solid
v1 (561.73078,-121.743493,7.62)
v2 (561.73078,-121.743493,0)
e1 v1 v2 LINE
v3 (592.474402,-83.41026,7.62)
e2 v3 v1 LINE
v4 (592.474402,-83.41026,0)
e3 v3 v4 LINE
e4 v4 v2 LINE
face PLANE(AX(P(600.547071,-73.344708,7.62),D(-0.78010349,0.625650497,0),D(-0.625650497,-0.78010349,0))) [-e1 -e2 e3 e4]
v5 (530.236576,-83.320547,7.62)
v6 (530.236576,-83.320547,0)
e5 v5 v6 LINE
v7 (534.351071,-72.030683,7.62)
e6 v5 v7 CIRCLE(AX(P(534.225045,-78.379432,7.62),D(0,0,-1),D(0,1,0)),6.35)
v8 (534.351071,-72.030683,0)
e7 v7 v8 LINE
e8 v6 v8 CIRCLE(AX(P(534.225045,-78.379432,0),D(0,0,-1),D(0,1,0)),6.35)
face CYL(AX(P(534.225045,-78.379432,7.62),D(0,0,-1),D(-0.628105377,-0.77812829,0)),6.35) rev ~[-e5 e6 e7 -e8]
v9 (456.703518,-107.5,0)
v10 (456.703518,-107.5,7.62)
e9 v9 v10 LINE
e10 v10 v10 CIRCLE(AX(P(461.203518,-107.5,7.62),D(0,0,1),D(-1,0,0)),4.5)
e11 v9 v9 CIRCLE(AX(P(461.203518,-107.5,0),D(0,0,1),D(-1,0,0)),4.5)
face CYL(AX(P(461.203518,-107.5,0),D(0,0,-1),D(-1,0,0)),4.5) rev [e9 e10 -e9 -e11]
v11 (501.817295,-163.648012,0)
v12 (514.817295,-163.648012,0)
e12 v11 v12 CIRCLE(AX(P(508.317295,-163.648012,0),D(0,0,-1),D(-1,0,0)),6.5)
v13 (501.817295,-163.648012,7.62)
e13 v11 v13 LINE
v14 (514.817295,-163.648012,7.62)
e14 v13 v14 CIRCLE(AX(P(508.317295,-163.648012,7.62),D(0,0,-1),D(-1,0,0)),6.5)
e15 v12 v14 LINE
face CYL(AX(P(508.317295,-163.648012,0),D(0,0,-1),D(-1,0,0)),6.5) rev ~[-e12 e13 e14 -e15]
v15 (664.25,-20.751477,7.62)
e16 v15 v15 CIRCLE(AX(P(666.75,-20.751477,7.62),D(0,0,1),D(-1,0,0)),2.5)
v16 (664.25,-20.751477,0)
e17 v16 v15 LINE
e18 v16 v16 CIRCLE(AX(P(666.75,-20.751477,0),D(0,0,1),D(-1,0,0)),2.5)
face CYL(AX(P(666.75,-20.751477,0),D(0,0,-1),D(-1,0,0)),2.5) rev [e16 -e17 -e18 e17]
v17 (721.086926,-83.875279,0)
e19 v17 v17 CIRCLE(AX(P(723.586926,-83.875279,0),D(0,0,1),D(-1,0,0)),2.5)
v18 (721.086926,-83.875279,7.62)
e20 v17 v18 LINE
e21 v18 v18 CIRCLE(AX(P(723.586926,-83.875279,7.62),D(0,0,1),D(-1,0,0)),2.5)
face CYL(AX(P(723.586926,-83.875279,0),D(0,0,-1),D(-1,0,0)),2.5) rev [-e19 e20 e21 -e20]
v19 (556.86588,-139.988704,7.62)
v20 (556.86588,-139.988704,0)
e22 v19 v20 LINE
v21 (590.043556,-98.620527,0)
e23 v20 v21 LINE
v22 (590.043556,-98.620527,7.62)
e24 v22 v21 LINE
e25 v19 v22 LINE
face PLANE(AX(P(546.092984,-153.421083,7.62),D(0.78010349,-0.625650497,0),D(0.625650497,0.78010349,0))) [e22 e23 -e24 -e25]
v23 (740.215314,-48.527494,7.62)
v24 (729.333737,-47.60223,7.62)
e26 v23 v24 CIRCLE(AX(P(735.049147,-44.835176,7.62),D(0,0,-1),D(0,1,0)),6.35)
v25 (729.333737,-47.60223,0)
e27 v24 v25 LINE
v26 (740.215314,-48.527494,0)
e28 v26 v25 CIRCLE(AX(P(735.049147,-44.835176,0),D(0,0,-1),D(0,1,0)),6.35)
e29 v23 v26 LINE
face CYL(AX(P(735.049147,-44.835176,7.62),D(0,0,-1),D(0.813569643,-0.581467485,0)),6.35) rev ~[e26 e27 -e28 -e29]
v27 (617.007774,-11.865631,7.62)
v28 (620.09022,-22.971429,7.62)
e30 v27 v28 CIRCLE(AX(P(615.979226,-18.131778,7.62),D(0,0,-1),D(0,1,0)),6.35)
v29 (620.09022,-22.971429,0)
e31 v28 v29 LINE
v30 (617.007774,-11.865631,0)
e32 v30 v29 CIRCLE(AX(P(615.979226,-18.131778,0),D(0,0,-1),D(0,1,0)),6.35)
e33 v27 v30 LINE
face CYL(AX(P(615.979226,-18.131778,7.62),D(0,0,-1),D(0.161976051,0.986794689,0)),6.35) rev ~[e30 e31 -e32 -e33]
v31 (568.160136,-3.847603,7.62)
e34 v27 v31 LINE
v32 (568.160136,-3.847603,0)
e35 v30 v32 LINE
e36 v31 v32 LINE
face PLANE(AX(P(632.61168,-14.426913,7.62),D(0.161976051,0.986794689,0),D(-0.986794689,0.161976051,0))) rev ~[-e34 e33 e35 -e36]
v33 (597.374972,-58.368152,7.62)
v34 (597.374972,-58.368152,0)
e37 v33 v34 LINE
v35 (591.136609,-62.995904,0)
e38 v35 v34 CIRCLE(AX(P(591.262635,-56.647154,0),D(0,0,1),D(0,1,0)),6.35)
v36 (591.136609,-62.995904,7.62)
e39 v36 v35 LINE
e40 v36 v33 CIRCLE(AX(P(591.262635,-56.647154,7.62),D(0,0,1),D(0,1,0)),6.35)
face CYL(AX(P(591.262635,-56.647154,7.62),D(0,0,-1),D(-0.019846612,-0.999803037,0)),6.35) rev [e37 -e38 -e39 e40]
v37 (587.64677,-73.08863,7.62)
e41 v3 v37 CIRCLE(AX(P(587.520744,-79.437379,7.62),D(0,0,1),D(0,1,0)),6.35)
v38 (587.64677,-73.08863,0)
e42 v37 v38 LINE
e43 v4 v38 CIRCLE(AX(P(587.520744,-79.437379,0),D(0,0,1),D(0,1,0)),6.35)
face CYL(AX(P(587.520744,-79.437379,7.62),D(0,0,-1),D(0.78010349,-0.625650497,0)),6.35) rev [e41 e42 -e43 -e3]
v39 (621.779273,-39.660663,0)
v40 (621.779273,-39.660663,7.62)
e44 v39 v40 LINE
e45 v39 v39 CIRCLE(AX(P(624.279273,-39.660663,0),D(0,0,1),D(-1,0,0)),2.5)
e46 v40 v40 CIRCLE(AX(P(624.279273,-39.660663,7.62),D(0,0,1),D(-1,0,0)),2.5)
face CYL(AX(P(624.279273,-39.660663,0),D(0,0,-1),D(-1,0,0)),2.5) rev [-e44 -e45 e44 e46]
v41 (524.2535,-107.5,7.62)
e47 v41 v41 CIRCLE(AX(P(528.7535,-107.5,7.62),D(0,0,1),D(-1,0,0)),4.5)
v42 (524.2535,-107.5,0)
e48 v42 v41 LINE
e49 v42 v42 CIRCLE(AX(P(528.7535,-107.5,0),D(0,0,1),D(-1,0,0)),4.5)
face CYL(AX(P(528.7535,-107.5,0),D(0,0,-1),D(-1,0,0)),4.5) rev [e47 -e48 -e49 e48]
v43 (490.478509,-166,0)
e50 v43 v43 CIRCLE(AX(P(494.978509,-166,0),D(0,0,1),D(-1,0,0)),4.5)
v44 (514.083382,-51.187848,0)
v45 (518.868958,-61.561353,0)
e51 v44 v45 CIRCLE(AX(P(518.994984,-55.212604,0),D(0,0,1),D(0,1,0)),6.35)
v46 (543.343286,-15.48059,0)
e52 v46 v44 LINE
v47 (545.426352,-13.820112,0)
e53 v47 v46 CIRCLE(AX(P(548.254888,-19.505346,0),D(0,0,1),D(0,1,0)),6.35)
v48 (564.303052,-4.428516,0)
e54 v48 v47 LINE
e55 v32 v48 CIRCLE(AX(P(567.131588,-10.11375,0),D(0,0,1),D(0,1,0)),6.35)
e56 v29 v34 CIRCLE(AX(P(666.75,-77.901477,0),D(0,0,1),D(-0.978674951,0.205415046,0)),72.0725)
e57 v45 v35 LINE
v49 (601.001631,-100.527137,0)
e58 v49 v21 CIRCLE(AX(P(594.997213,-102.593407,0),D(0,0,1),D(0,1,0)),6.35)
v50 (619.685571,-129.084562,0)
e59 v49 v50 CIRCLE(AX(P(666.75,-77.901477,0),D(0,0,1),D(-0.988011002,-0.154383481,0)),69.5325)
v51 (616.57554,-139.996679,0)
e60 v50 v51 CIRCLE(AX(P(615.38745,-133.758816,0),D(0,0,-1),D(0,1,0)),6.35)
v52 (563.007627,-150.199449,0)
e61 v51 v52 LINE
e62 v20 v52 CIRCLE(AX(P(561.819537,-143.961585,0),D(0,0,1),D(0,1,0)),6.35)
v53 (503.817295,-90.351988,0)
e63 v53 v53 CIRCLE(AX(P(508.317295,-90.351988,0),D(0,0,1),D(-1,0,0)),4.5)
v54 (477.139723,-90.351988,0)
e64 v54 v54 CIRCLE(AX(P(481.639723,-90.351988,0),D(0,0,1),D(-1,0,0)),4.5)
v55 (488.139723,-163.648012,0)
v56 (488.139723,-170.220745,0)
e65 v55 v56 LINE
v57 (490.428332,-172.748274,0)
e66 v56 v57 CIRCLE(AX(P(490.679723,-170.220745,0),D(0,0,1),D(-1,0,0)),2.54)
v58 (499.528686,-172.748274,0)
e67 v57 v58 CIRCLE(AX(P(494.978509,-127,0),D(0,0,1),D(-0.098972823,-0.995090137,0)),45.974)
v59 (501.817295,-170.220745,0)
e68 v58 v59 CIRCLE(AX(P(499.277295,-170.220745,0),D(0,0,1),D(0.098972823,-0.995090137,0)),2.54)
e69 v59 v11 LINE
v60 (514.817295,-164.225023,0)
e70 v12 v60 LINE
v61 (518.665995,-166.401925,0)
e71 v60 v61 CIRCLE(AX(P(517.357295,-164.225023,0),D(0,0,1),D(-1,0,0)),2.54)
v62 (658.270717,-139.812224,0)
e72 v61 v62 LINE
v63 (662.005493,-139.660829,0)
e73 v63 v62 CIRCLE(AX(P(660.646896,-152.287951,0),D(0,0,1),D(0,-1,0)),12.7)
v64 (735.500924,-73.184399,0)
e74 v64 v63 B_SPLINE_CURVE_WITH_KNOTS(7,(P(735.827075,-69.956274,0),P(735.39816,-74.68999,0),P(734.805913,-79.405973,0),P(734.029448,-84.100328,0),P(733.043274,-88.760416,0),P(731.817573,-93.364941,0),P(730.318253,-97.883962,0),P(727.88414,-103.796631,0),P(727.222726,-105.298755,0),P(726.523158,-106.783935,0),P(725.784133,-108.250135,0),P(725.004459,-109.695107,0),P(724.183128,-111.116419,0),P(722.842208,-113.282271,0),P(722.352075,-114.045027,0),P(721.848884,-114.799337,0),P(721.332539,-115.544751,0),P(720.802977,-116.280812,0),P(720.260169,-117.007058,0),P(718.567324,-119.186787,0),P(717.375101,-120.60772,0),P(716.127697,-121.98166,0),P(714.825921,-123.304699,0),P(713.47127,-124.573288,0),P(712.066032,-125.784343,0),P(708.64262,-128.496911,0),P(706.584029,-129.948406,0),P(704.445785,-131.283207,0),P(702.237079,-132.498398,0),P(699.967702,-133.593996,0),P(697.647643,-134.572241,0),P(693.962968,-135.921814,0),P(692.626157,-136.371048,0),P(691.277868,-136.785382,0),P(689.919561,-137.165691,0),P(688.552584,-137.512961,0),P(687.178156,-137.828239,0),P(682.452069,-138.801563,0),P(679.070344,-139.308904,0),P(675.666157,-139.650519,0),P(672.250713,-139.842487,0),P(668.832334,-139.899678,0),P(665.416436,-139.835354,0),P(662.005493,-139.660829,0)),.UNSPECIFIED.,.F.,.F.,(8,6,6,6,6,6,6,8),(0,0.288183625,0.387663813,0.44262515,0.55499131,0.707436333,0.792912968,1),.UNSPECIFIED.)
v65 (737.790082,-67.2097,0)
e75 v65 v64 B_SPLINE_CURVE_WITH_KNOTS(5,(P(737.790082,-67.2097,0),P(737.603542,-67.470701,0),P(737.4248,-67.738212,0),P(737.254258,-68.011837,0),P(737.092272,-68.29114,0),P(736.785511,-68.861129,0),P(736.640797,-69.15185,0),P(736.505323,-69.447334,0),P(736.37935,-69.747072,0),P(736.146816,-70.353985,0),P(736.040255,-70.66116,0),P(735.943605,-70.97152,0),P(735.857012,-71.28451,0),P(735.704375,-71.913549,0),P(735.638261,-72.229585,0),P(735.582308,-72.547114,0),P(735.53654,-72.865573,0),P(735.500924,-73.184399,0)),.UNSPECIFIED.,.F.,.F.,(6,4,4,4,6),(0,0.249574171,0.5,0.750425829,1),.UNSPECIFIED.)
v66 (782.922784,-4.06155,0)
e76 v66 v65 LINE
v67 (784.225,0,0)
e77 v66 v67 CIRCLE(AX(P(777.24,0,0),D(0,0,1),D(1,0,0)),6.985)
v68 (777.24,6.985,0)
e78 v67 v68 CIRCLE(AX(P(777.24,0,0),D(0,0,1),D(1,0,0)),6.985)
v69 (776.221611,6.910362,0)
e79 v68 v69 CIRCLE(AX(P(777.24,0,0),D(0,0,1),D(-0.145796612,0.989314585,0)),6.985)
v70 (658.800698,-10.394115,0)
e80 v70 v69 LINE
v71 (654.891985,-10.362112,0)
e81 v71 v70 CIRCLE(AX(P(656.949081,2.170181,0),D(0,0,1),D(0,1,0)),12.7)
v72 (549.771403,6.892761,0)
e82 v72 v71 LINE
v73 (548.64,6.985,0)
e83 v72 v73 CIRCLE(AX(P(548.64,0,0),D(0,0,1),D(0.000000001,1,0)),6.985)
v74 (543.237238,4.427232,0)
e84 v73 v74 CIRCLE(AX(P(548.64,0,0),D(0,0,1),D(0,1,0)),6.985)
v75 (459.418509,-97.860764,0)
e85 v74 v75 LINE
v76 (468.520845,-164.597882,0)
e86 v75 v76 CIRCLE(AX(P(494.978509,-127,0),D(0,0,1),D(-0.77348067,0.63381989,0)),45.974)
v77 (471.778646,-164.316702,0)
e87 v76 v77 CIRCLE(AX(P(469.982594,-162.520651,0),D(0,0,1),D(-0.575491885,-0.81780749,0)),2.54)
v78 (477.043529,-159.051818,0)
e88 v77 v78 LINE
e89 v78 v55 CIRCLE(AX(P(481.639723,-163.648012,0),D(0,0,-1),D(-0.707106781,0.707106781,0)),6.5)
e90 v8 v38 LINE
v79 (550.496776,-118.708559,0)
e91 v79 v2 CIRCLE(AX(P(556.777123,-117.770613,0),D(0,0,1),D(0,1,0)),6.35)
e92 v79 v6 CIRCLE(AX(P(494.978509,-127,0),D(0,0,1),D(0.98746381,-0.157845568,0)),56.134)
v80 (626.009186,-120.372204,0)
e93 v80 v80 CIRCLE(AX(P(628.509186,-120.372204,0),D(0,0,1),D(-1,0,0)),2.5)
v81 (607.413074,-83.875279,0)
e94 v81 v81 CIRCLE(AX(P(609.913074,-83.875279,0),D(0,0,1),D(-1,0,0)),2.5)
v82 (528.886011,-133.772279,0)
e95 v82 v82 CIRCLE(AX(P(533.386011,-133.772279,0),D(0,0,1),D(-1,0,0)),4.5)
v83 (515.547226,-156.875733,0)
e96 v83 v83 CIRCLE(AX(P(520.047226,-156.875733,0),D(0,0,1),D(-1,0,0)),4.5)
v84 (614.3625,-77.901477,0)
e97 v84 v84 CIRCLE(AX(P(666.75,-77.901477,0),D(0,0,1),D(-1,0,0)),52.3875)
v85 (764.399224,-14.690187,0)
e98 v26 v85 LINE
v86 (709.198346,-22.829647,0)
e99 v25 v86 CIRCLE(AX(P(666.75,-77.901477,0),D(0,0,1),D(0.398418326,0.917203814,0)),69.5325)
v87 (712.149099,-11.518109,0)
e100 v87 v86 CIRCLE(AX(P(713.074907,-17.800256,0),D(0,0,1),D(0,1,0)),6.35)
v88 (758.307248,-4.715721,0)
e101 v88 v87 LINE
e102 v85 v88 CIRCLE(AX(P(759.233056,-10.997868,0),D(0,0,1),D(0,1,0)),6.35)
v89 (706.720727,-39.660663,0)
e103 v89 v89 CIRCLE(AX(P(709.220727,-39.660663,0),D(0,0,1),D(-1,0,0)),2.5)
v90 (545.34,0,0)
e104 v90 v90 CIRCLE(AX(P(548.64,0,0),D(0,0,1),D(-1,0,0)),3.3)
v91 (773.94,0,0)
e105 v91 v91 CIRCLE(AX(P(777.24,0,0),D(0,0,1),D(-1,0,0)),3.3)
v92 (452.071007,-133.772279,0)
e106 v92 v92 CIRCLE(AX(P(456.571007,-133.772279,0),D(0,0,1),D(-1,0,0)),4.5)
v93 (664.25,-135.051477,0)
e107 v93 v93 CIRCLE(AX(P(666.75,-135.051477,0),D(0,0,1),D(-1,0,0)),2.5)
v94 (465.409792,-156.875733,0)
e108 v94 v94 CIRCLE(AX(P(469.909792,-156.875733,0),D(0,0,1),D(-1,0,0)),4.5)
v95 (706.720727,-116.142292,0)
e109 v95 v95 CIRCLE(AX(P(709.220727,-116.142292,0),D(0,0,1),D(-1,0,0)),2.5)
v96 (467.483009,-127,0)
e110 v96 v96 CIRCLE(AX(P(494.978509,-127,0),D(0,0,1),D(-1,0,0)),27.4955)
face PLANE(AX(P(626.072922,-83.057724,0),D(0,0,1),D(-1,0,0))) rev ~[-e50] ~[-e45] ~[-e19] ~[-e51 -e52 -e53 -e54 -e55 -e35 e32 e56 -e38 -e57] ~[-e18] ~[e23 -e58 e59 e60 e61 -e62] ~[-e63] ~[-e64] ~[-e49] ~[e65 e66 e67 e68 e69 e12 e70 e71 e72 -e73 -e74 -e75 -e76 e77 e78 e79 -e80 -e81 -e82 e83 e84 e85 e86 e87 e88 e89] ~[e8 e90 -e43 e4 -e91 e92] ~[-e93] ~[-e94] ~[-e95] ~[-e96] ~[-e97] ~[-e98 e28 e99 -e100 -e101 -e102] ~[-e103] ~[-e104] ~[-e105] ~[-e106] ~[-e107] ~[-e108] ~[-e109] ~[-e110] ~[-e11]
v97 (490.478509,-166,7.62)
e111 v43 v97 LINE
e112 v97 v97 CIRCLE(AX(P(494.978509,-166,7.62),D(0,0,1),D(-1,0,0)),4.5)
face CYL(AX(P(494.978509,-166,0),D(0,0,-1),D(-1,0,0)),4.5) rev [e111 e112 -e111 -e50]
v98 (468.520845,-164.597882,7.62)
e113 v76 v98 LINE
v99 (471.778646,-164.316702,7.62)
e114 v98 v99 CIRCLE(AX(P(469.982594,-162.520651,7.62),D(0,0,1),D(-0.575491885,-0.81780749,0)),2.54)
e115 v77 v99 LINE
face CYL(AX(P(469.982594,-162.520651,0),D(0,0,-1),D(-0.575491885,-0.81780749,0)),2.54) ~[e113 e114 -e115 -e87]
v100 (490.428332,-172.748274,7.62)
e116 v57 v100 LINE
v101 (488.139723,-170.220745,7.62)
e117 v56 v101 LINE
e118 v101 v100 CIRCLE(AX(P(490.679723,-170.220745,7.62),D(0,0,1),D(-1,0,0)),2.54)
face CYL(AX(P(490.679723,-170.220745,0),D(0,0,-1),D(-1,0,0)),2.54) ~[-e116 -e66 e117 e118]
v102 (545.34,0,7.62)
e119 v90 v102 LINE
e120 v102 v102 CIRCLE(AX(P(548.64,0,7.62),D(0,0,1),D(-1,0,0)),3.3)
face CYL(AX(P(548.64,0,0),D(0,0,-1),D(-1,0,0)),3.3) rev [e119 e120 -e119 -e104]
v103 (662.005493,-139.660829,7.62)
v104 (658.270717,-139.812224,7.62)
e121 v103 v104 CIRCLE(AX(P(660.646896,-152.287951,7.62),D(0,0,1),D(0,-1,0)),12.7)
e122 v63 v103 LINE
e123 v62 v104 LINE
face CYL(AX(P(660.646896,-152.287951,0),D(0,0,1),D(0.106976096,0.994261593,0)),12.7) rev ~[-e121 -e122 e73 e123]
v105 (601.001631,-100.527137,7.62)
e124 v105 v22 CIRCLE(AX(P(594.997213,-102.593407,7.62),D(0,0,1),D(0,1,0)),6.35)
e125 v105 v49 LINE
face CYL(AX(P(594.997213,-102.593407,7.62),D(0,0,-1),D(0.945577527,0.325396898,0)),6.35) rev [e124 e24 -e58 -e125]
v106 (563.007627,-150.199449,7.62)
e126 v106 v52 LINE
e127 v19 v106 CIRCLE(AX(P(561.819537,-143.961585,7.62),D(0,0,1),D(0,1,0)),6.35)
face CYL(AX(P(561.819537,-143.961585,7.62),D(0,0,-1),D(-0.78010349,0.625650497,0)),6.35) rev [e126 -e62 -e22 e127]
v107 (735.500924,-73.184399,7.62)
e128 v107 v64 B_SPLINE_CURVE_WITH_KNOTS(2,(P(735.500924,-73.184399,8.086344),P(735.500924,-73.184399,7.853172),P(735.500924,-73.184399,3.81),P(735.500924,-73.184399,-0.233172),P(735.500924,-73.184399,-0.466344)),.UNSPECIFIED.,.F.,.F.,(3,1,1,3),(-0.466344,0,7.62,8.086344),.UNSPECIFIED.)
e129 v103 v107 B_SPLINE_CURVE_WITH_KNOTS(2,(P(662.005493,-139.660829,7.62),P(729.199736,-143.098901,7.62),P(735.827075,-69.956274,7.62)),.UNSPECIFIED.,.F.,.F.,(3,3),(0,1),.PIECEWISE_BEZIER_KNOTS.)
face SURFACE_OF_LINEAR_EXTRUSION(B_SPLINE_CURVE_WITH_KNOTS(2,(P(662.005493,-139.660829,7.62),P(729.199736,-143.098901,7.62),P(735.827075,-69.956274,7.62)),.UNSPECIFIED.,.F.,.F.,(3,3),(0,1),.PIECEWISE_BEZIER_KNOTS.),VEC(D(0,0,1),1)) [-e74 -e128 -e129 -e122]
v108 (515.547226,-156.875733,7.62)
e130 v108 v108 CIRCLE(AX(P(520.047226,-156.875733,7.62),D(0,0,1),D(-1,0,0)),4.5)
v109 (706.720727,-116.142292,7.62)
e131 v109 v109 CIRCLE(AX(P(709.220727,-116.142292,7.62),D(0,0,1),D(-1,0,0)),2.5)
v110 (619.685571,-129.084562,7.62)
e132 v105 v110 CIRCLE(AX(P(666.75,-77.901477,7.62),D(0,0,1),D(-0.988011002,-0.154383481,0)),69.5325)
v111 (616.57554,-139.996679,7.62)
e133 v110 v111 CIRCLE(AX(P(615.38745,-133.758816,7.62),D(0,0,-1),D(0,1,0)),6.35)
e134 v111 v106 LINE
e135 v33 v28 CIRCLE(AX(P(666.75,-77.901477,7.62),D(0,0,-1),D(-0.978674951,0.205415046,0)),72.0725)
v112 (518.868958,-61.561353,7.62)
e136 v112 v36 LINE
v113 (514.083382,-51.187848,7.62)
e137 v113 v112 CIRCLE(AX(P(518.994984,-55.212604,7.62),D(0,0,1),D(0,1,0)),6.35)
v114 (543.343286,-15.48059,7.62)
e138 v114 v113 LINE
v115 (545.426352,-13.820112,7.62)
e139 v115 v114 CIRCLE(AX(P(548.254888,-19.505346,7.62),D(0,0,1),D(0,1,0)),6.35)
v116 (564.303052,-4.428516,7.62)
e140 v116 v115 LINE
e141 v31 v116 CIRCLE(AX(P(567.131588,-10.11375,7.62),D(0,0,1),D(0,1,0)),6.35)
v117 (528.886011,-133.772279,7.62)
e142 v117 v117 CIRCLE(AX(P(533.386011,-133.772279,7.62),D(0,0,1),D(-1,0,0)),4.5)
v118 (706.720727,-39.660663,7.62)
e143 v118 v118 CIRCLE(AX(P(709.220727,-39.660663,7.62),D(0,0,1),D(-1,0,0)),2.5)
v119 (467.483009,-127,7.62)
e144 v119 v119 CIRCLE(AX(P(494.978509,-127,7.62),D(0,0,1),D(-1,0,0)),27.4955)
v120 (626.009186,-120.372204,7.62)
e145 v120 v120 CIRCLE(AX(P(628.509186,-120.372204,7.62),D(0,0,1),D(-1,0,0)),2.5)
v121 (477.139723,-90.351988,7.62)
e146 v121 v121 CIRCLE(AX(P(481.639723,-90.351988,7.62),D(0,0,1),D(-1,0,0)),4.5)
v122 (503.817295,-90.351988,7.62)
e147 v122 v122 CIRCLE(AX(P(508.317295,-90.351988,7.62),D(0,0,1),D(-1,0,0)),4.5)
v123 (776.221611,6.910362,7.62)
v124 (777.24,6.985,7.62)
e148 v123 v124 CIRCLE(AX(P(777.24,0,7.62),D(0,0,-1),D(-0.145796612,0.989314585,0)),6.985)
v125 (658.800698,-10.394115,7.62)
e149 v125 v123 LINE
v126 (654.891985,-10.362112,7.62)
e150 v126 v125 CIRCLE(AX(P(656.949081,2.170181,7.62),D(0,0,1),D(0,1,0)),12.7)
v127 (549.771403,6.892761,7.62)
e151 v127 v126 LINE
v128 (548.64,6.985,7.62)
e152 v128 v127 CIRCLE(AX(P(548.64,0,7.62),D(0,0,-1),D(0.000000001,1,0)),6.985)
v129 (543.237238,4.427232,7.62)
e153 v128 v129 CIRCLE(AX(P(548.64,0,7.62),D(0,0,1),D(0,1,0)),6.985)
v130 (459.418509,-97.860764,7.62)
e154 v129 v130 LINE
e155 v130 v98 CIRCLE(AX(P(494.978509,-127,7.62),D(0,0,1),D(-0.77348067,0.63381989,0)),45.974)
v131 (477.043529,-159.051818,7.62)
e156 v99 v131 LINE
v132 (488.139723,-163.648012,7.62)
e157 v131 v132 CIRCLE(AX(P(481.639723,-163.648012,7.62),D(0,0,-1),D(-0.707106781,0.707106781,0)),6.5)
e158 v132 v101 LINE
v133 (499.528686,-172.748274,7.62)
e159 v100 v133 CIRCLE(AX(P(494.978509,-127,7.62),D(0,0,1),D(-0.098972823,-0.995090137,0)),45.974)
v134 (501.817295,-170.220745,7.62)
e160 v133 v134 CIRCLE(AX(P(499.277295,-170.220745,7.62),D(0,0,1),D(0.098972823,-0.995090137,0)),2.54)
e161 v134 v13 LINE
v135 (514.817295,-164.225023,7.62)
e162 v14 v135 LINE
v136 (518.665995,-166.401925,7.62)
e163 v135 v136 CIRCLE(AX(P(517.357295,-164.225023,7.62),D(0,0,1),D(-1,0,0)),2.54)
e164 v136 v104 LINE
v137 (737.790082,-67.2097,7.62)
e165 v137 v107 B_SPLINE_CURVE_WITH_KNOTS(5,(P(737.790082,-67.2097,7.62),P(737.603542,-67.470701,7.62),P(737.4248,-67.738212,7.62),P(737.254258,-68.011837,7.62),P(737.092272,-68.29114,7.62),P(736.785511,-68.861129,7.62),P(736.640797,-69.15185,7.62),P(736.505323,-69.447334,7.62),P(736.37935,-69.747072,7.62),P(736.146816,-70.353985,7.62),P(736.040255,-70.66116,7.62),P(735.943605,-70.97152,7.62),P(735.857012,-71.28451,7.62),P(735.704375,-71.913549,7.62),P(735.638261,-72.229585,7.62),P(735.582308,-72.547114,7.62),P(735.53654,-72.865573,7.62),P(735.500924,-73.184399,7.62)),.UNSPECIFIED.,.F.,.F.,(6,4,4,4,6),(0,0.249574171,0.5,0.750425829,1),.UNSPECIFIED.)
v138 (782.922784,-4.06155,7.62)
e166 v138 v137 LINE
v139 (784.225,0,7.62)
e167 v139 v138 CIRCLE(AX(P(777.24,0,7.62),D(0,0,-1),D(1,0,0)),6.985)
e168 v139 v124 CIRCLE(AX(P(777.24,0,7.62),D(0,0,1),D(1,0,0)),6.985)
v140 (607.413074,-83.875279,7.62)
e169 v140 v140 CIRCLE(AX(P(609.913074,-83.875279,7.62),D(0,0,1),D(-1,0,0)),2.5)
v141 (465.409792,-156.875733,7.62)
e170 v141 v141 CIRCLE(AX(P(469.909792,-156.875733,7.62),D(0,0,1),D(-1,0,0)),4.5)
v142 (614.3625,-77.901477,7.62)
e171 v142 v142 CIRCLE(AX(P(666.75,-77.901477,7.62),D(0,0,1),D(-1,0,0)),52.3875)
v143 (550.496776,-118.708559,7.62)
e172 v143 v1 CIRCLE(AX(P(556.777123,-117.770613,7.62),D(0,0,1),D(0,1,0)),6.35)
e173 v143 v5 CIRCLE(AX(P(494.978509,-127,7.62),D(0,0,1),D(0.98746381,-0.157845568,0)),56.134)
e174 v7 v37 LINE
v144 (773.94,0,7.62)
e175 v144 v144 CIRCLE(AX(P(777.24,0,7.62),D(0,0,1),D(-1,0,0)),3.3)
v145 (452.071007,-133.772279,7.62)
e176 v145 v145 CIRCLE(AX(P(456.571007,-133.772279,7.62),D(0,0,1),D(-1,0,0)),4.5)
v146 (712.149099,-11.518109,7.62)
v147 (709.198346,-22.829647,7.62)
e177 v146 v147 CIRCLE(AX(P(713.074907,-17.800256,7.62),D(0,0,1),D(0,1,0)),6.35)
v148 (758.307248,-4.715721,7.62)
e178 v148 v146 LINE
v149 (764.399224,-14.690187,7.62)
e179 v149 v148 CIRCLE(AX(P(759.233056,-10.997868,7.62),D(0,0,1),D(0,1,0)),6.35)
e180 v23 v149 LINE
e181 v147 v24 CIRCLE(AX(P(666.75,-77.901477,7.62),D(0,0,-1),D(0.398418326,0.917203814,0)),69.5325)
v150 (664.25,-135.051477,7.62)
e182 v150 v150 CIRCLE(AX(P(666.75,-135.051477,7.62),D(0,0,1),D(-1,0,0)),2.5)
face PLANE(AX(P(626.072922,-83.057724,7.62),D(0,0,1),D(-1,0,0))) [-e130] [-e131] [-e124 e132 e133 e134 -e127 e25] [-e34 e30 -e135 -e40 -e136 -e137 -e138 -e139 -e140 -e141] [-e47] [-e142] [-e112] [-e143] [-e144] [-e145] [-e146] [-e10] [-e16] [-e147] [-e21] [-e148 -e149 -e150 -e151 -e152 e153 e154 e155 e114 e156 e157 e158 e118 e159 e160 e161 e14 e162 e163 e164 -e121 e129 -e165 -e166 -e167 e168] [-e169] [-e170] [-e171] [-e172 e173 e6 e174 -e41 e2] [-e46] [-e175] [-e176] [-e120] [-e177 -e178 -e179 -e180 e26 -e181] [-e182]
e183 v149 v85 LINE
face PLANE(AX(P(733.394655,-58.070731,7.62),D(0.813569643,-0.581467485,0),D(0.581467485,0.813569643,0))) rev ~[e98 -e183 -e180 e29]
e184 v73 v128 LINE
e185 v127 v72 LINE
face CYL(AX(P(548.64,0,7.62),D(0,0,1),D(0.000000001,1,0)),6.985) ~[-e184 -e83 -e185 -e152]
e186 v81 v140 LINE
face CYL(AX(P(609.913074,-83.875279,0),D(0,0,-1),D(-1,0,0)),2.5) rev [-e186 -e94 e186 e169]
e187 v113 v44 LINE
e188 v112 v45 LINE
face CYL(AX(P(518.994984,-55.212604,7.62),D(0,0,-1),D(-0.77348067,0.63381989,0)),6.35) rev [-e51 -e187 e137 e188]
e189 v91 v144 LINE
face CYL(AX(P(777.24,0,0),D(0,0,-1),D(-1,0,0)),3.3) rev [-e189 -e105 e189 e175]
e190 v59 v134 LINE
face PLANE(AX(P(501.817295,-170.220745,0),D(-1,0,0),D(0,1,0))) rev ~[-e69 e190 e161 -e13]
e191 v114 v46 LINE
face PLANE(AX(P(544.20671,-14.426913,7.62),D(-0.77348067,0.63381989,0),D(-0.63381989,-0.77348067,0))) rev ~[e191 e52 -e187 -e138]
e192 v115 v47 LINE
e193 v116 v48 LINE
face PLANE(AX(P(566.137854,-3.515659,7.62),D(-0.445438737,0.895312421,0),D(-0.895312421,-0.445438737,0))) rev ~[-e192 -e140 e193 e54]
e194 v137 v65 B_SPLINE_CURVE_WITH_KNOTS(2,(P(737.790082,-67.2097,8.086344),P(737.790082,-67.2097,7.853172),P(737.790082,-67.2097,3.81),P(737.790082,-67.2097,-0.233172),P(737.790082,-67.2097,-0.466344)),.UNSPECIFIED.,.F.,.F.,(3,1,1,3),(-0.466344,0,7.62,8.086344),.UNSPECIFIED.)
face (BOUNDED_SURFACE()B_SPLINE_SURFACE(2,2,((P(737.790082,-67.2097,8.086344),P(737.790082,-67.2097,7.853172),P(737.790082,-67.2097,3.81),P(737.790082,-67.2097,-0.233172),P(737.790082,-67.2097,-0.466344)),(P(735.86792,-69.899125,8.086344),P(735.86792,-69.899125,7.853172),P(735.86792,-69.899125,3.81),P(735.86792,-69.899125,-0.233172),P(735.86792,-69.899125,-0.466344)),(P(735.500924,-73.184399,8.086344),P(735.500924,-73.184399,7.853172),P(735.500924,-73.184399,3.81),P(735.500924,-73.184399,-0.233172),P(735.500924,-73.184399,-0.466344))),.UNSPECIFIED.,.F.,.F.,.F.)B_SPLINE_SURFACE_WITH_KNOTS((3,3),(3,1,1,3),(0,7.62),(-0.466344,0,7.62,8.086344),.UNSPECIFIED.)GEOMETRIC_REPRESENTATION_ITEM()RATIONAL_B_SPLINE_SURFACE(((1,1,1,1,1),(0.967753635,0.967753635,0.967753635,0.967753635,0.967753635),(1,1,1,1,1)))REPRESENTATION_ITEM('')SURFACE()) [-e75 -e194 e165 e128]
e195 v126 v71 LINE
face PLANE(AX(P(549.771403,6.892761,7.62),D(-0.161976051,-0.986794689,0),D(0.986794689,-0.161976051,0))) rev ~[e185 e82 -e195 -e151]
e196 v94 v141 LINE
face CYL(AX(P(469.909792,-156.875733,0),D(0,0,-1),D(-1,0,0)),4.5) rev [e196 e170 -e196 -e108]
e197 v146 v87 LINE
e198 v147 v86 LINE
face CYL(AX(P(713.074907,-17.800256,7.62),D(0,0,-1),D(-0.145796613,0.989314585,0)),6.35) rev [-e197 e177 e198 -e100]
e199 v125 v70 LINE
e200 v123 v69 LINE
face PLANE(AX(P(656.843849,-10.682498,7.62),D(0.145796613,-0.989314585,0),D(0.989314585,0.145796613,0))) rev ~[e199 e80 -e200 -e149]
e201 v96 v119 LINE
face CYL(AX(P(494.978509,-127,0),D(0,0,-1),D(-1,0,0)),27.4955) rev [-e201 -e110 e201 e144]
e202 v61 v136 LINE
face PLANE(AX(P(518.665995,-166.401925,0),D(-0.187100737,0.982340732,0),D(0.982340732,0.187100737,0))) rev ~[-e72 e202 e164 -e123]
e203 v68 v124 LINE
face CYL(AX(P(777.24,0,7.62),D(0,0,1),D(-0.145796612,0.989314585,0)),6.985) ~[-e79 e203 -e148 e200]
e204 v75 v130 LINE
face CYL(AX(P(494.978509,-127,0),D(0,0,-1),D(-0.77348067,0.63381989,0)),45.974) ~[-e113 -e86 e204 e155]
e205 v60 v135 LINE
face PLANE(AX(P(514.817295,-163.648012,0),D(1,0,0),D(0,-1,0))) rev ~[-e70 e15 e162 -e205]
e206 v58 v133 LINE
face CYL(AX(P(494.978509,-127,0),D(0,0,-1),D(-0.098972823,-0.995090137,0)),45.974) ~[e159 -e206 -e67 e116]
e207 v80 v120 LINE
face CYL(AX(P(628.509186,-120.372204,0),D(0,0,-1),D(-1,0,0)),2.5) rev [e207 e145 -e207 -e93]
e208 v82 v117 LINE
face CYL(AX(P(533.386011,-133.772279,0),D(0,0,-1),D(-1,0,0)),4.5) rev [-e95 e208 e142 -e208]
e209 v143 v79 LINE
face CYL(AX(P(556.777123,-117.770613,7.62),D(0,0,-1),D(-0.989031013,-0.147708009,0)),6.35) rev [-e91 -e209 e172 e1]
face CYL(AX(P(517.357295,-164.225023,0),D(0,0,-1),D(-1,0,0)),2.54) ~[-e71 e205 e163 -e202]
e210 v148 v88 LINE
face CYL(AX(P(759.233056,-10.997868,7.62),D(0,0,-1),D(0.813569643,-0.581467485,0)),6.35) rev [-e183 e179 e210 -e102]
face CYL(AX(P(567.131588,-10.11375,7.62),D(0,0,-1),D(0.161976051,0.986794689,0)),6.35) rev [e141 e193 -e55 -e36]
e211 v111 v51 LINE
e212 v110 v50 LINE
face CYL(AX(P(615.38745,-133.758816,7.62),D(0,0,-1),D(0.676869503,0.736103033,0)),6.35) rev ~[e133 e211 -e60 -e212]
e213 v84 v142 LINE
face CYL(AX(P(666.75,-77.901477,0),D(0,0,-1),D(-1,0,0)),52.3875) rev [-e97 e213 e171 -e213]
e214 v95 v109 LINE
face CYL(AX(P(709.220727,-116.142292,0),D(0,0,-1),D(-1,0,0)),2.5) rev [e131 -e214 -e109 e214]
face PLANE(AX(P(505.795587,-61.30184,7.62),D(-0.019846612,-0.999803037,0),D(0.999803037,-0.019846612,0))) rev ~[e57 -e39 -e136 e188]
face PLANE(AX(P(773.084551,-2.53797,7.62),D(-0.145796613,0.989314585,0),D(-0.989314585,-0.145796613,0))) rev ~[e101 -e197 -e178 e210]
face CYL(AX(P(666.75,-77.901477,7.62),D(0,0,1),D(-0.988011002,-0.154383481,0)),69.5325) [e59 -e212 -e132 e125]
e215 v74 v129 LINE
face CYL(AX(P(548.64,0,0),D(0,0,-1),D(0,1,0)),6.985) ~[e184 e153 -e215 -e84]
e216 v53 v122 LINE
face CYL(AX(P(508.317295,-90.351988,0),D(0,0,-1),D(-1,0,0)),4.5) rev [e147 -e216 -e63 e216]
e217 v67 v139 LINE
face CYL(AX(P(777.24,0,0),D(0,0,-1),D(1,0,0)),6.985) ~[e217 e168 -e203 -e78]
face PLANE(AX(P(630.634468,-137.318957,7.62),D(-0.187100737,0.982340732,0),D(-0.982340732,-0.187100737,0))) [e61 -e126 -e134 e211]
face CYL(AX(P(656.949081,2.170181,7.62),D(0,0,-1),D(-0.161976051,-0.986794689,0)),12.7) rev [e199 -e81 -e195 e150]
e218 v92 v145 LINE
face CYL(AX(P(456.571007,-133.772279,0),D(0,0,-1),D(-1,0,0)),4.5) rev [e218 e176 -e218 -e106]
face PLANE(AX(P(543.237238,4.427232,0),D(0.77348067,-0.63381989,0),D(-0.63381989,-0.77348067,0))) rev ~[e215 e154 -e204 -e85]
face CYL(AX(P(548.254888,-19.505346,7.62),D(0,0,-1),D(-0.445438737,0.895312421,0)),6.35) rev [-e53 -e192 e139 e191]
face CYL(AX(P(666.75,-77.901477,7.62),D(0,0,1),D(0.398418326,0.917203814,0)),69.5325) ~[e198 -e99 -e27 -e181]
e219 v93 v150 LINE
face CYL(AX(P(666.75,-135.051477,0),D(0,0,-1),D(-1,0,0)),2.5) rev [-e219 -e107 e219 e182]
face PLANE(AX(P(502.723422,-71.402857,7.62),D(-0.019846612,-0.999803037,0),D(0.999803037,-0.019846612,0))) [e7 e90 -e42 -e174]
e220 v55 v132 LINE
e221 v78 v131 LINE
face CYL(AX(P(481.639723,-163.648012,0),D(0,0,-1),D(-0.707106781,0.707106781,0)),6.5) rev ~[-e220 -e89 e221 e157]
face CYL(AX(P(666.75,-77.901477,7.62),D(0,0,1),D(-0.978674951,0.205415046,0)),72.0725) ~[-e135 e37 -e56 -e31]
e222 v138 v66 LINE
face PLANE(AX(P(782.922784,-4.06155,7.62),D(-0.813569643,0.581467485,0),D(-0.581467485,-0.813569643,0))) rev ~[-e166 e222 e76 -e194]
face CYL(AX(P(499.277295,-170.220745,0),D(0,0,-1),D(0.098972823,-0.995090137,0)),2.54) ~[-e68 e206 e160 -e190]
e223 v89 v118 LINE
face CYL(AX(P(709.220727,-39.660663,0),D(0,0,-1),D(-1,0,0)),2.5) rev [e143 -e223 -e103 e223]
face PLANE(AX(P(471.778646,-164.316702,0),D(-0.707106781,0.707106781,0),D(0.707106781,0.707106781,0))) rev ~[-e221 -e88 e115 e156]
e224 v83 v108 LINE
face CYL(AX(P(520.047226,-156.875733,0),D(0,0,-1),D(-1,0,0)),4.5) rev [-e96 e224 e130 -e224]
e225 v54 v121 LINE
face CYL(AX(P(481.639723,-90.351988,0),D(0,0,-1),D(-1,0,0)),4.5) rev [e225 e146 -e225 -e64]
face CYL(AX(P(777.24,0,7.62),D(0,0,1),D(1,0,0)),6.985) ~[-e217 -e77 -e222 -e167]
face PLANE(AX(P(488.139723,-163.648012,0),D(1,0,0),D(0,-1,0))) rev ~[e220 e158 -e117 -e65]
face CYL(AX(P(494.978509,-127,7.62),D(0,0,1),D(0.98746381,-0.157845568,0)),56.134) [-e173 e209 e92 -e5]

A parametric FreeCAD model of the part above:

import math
import FreeCAD as App
import Part
import Sketcher
from FreeCAD import Vector
Q = App.Units.Quantity


def edges_at(feature, points):
    """Names of the edges that pass closest to the given points."""
    edges = feature.Shape.Edges
    near = lambda p: min(range(len(edges)), key=lambda i: edges[i].distToShape(Part.Vertex(*p))[0])
    return sorted({f"Edge{near(p) + 1}" for p in points})

doc = App.newDocument("Part")
body = doc.addObject("PartDesign::Body", "Body")

# Sketch on XY plane
sketch1 = body.newObject("Sketcher::SketchObject", "Sketch")
sketch1.AttachmentSupport = (doc.getObject("XY_Plane"), [""])
sketch1.MapMode = "FlatFace"
sketch1.addGeometry([
    Part.ArcOfCircle(Part.Circle(Vector(777.2, -145, 0), Vector(0, 0, 1), 7), math.radians(-96), math.radians(0)),  # 0
    Part.LineSegment(Vector(784.2, -145, 0), Vector(784.2, 0, 0)),  # 1
    Part.ArcOfCircle(Part.Circle(Vector(777.2, 0, 0), Vector(0, 0, 1), 7), math.radians(0), math.radians(90)),  # 2
    Part.LineSegment(Vector(777.2, 7, 0), Vector(548.6, 7, 0)),  # 3
    Part.ArcOfCircle(Part.Circle(Vector(548.6, 0, 0), Vector(0, 0, 1), 7), math.radians(90), math.radians(141)),  # 4
    Part.LineSegment(Vector(543.2, 4.4, 0), Vector(459.4, -97.9, 0)),  # 5
    Part.ArcOfCircle(Part.Circle(Vector(495, -127, 0), Vector(0, 0, 1), 46), math.radians(141), math.radians(235)),  # 6
    Part.ArcOfCircle(Part.Circle(Vector(470, -162.5, 0), Vector(0, 0, 1), 2.5), math.radians(-125), math.radians(-45)),  # 7
    Part.LineSegment(Vector(471.8, -164.3, 0), Vector(477, -159.1, 0)),  # 8
    Part.ArcOfCircle(Part.Circle(Vector(481.6, -163.6, 0), Vector(0, 0, 1), 6.5), math.radians(0), math.radians(135)),  # 9
    Part.LineSegment(Vector(488.1, -163.6, 0), Vector(488.1, -170.2, 0)),  # 10
    Part.ArcOfCircle(Part.Circle(Vector(490.7, -170.2, 0), Vector(0, 0, 1), 2.5), math.radians(180), math.radians(264)),  # 11
    Part.ArcOfCircle(Part.Circle(Vector(495, -127, 0), Vector(0, 0, 1), 46), math.radians(-95.68), math.radians(-84.32)),  # 12
    Part.ArcOfCircle(Part.Circle(Vector(499.3, -170.2, 0), Vector(0, 0, 1), 2.5), math.radians(-84), math.radians(0)),  # 13
    Part.LineSegment(Vector(501.8, -170.2, 0), Vector(501.8, -163.6, 0)),  # 14
    Part.ArcOfCircle(Part.Circle(Vector(508.3, -163.6, 0), Vector(0, 0, 1), 6.5), math.radians(0), math.radians(180)),  # 15
    Part.LineSegment(Vector(514.8, -163.6, 0), Vector(514.8, -164.2, 0)),  # 16
    Part.ArcOfCircle(Part.Circle(Vector(517.4, -164.2, 0), Vector(0, 0, 1), 2.5), math.radians(-180), math.radians(-59)),  # 17
    Part.LineSegment(Vector(518.7, -166.4, 0), Vector(660.1, -139.5, 0)),  # 18
    Part.LineSegment(Vector(660.1, -139.5, 0), Vector(776.5, -152, 0)),  # 19
    Part.Circle(Vector(777.2, 0, 0), Vector(0, 0, 1), 3.3),  # 20
    Part.Circle(Vector(709.2, -39.7, 0), Vector(0, 0, 1), 2.5),  # 21
    Part.Circle(Vector(666.8, -20.8, 0), Vector(0, 0, 1), 2.5),  # 22
    Part.Circle(Vector(624.3, -39.7, 0), Vector(0, 0, 1), 2.5),  # 23
    Part.Circle(Vector(666.8, -77.9, 0), Vector(0, 0, 1), 52.4),  # 24
    Part.Circle(Vector(548.6, 0, 0), Vector(0, 0, 1), 3.3),  # 25
    Part.Circle(Vector(723.6, -83.9, 0), Vector(0, 0, 1), 2.5),  # 26
    Part.Circle(Vector(709.2, -116.1, 0), Vector(0, 0, 1), 2.5),  # 27
    Part.Circle(Vector(628.5, -120.4, 0), Vector(0, 0, 1), 2.5),  # 28
    Part.Circle(Vector(777.2, -145, 0), Vector(0, 0, 1), 3.3),  # 29
    Part.Circle(Vector(666.8, -135.1, 0), Vector(0, 0, 1), 2.5),  # 30
    Part.Circle(Vector(609.9, -83.9, 0), Vector(0, 0, 1), 2.5),  # 31
    Part.Circle(Vector(508.3, -90.4, 0), Vector(0, 0, 1), 4.5),  # 32
    Part.Circle(Vector(481.6, -90.4, 0), Vector(0, 0, 1), 4.5),  # 33
    Part.Circle(Vector(528.8, -107.5, 0), Vector(0, 0, 1), 4.5),  # 34
    Part.Circle(Vector(495, -127, 0), Vector(0, 0, 1), 27.5),  # 35
    Part.Circle(Vector(461.2, -107.5, 0), Vector(0, 0, 1), 4.5),  # 36
    Part.Circle(Vector(533.4, -133.8, 0), Vector(0, 0, 1), 4.5),  # 37
    Part.Circle(Vector(456.6, -133.8, 0), Vector(0, 0, 1), 4.5),  # 38
    Part.Circle(Vector(520, -156.9, 0), Vector(0, 0, 1), 4.5),  # 39
    Part.Circle(Vector(495, -166, 0), Vector(0, 0, 1), 4.5),  # 40
    Part.Circle(Vector(469.9, -156.9, 0), Vector(0, 0, 1), 4.5),  # 41
], False)
sketch1.addConstraint([
    Sketcher.Constraint("Tangent", 0, 2, 1, 1),
    Sketcher.Constraint("Tangent", 1, 2, 2, 1),
    Sketcher.Constraint("Tangent", 2, 2, 3, 1),
    Sketcher.Constraint("Tangent", 3, 2, 4, 1),
    Sketcher.Constraint("Tangent", 4, 2, 5, 1),
    Sketcher.Constraint("Tangent", 5, 2, 6, 1),
    Sketcher.Constraint("Tangent", 6, 2, 7, 1),
    Sketcher.Constraint("Tangent", 7, 2, 8, 1),
    Sketcher.Constraint("Tangent", 8, 2, 9, 2),
    Sketcher.Constraint("Tangent", 9, 1, 10, 1),
    Sketcher.Constraint("Tangent", 10, 2, 11, 1),
    Sketcher.Constraint("Tangent", 11, 2, 12, 1),
    Sketcher.Constraint("Tangent", 12, 2, 13, 1),
    Sketcher.Constraint("Tangent", 13, 2, 14, 1),
    Sketcher.Constraint("Tangent", 14, 2, 15, 2),
    Sketcher.Constraint("Tangent", 15, 1, 16, 1),
    Sketcher.Constraint("Tangent", 16, 2, 17, 1),
    Sketcher.Constraint("Coincident", 17, 2, 18, 1),
    Sketcher.Constraint("Coincident", 18, 2, 19, 1),
    Sketcher.Constraint("Tangent", 19, 2, 0, 1),
    Sketcher.Constraint("Vertical", 1),
    Sketcher.Constraint("Horizontal", 3),
    Sketcher.Constraint("Vertical", 10),
    Sketcher.Constraint("Vertical", 14),
    Sketcher.Constraint("Vertical", 16),
    Sketcher.Constraint("Coincident", 12, 3, 6, 3),
    Sketcher.Constraint("Coincident", 20, 3, 2, 3),
    Sketcher.Constraint("Coincident", 25, 3, 4, 3),
    Sketcher.Constraint("Coincident", 29, 3, 0, 3),
    Sketcher.Constraint("Coincident", 35, 3, 6, 3),
    Sketcher.Constraint("Equal", 0, 2),
    Sketcher.Constraint("Equal", 2, 4),
    Sketcher.Constraint("Equal", 7, 11),
    Sketcher.Constraint("Equal", 6, 12),
    Sketcher.Constraint("Equal", 11, 13),
    Sketcher.Constraint("Equal", 9, 15),
    Sketcher.Constraint("Equal", 13, 17),
    Sketcher.Constraint("Equal", 21, 22),
    Sketcher.Constraint("Equal", 22, 23),
    Sketcher.Constraint("Equal", 20, 25),
    Sketcher.Constraint("Equal", 23, 26),
    Sketcher.Constraint("Equal", 26, 27),
    Sketcher.Constraint("Equal", 27, 28),
    Sketcher.Constraint("Equal", 25, 29),
    Sketcher.Constraint("Equal", 28, 30),
    Sketcher.Constraint("Equal", 30, 31),
    Sketcher.Constraint("Equal", 32, 33),
    Sketcher.Constraint("Equal", 33, 34),
    Sketcher.Constraint("Equal", 34, 36),
    Sketcher.Constraint("Equal", 36, 37),
    Sketcher.Constraint("Equal", 37, 38),
    Sketcher.Constraint("Equal", 38, 39),
    Sketcher.Constraint("Equal", 39, 40),
    Sketcher.Constraint("Equal", 40, 41),
    Sketcher.Constraint("PointOnObject", 2, 3, -1),
    Sketcher.Constraint("Horizontal", 11, 3, 13, 3),
    Sketcher.Constraint("Horizontal", 9, 3, 15, 3),
    Sketcher.Constraint("Horizontal", 21, 3, 23, 3),
    Sketcher.Constraint("Horizontal", 26, 3, 31, 3),
    Sketcher.Constraint("Horizontal", 32, 3, 33, 3),
    Sketcher.Constraint("Horizontal", 34, 3, 36, 3),
    Sketcher.Constraint("Horizontal", 37, 3, 38, 3),
    Sketcher.Constraint("Horizontal", 39, 3, 41, 3),
    Sketcher.Constraint("Vertical", 22, 3, 24, 3),
    Sketcher.Constraint("Vertical", 21, 3, 27, 3),
    Sketcher.Constraint("Vertical", 24, 3, 30, 3),
    Sketcher.Constraint("Vertical", 15, 3, 32, 3),
    Sketcher.Constraint("Vertical", 9, 3, 33, 3),
    Sketcher.Constraint("Vertical", 35, 3, 40, 3),
    Sketcher.Constraint("Radius", 7, Q("0.1 in")),
    Sketcher.Constraint("DistanceX", 3, 2, 3, 1, Q("9 in")),
    Sketcher.Constraint("Radius", 6, Q("1.81 in")),
    Sketcher.Constraint("Diameter", 24, Q("4.125 in")),
    Sketcher.Constraint("Diameter", 35, Q("2.165 in")),
    Sketcher.Constraint("DistanceY", 6, 3, -1, 1, Q("5 in")),
    Sketcher.Constraint("Angle", 8, Q("45 deg")),
    Sketcher.Constraint("Radius", 0, Q("0.275 in")),
    Sketcher.Constraint("DistanceY", 1, 1, 1, 2, Q("5.71 in")),
    Sketcher.Constraint("DistanceX", -1, 1, 0, 3, Q("30.6 in")),
    Sketcher.Constraint("DistanceX", 5, 2, 12, 3, Q("1.4 in")),
    Sketcher.Constraint("Diameter", 20, 6.6),
    Sketcher.Constraint("Diameter", 21, 5.0),
    Sketcher.Constraint("Diameter", 32, 9.0),
    Sketcher.Constraint("DistanceX", -1, 1, 22, 3, Q("26.25 in")),
    Sketcher.Constraint("Radius", 9, 6.5),
    Sketcher.Constraint("DistanceY", 24, 3, 22, 3, Q("2.25 in")),
    Sketcher.Constraint("DistanceY", 30, 3, 24, 3, Q("2.25 in")),
    Sketcher.Constraint("DistanceY", 18, 2, -1, 1, Q("5.4904999 in")),
    Sketcher.Constraint("DistanceY", 16, 2, 16, 1, 0.57701),
    Sketcher.Constraint("DistanceX", -1, 1, 34, 3, 528.7535),
    Sketcher.Constraint("DistanceY", 34, 3, -1, 1, 107.5),
    Sketcher.Constraint("DistanceY", 40, 3, -1, 1, 166.0),
    Sketcher.Constraint("DistanceY", 7, 2, -1, 1, 164.316702),
    Sketcher.Constraint("DistanceX", 7, 3, 13, 3, 29.2947),
    Sketcher.Constraint("DistanceX", 21, 3, 26, 3, 14.3662),
    Sketcher.Constraint("DistanceY", 26, 3, 24, 3, 5.973802),
    Sketcher.Constraint("DistanceX", 31, 3, 23, 3, 14.3662),
    Sketcher.Constraint("DistanceX", 17, 3, 17, 2, 1.308701),
    Sketcher.Constraint("Distance", 18, 144.003849),
    Sketcher.Constraint("DistanceY", 26, 3, -1, 1, 83.875279),
    Sketcher.Constraint("DistanceY", 27, 3, -1, 1, 116.142292),
    Sketcher.Constraint("DistanceX", -1, 1, 36, 3, 461.203518),
    Sketcher.Constraint("DistanceX", -1, 1, 37, 3, 533.386011),
    Sketcher.Constraint("DistanceY", 37, 3, -1, 1, 133.772279),
    Sketcher.Constraint("DistanceY", 17, 3, 21, 3, 124.564359),
    Sketcher.Constraint("DistanceX", 28, 3, 27, 3, 80.711541),
    Sketcher.Constraint("DistanceY", 28, 3, 23, 3, 80.711541),
    Sketcher.Constraint("DistanceX", 38, 3, 36, 3, 4.632512),
    Sketcher.Constraint("DistanceX", 17, 3, 39, 3, 2.689931),
    Sketcher.Constraint("DistanceY", 17, 3, 39, 3, 7.349289),
    Sketcher.Constraint("DistanceX", 41, 3, 9, 3, 11.729931),
    Sketcher.Constraint("DistanceY", 32, 3, 4, 2, 94.77922),
    Sketcher.Constraint("DistanceX", 31, 3, 18, 2, 50.213769),
    Sketcher.Constraint("DistanceX", -1, 1, 21, 3, 709.220727),
])
pad1 = body.newObject("PartDesign::Pad", "Pad")
pad1.Profile = sketch1
pad1.Length = Q("0.3 in")

# Sketch on XY plane
sketch2 = body.newObject("Sketcher::SketchObject", "Sketch001")
sketch2.AttachmentSupport = (doc.getObject("XY_Plane"), [""])
sketch2.MapMode = "FlatFace"
sketch2.AttachmentOffset = App.Placement(Vector(0, 0, 0.3 * 25.4), App.Rotation())
sketch2.addGeometry([
    Part.LineSegment(Vector(656.8, -10.7, 0), Vector(776.2, 6.9, 0)),  # 0
    Part.ArcOfCircle(Part.Circle(Vector(777.2, 0, 0), Vector(0, 0, 1), 7), math.radians(90), math.radians(98.38)),  # 1
    Part.LineSegment(Vector(777.2, 7, 0), Vector(548.6, 7, 0)),  # 2
    Part.ArcOfCircle(Part.Circle(Vector(548.6, 0, 0), Vector(0, 0, 1), 7), math.radians(80.68), math.radians(90)),  # 3
    Part.LineSegment(Vector(549.8, 6.9, 0), Vector(656.8, -10.7, 0)),  # 4
    Part.LineSegment(Vector(735.8, -70, 0), Vector(783.1, -141.2, 0)),  # 5
    Part.ArcOfCircle(Part.Circle(Vector(777.2, -145, 0), Vector(0, 0, 1), 7), math.radians(0), math.radians(34)),  # 6
    Part.LineSegment(Vector(784.2, -145, 0), Vector(784.2, 0, 0)),  # 7
    Part.ArcOfCircle(Part.Circle(Vector(777.2, 0, 0), Vector(0, 0, 1), 7), math.radians(-36), math.radians(0)),  # 8
    Part.LineSegment(Vector(782.9, -4.1, 0), Vector(735.8, -70, 0)),  # 9
], False)
sketch2.addConstraint([
    Sketcher.Constraint("Tangent", 0, 2, 1, 2),
    Sketcher.Constraint("Tangent", 1, 1, 2, 1),
    Sketcher.Constraint("Tangent", 2, 2, 3, 2),
    Sketcher.Constraint("Tangent", 3, 1, 4, 1),
    Sketcher.Constraint("Coincident", 4, 2, 0, 1),
    Sketcher.Constraint("Tangent", 5, 2, 6, 2),
    Sketcher.Constraint("Tangent", 6, 1, 7, 1),
    Sketcher.Constraint("Tangent", 7, 2, 8, 2),
    Sketcher.Constraint("Tangent", 8, 1, 9, 1),
    Sketcher.Constraint("Coincident", 9, 2, 5, 1),
    Sketcher.Constraint("Horizontal", 2),
    Sketcher.Constraint("Vertical", 7),
    Sketcher.Constraint("Coincident", 8, 3, 1, 3),
    Sketcher.Constraint("Equal", 1, 3),
    Sketcher.Constraint("Equal", 3, 6),
    Sketcher.Constraint("Equal", 6, 8),
    Sketcher.Constraint("PointOnObject", 1, 3, -1),
    Sketcher.Constraint("DistanceX", 2, 2, 2, 1, Q("9 in")),
    Sketcher.Constraint("Radius", 1, Q("0.275 in")),
    Sketcher.Constraint("DistanceY", 7, 1, 7, 2, Q("5.71 in")),
    Sketcher.Constraint("DistanceX", -1, 1, 1, 3, Q("30.6 in")),
    Sketcher.Constraint("DistanceY", 5, 2, 0, 2, 148.083599),
    Sketcher.Constraint("Distance", 0, 120.66714),
    Sketcher.Constraint("Distance", 9, 80.99457),
    Sketcher.Constraint("DistanceX", -1, 1, 0, 2, 776.221611),
])
pocket1 = body.newObject("PartDesign::Pocket", "Pocket")
pocket1.Profile = sketch2
pocket1.Type = "ThroughAll"
doc.recompute()

fillet = body.newObject("PartDesign::Fillet", "Fillet")
fillet.Base = (pocket1, edges_at(pocket1, [(656.844, -10.682, 3.81), (660.127, -139.459, 3.81)]))
fillet.Radius = Q("0.5 in")

# Sketch on XY plane
sketch3 = body.newObject("Sketcher::SketchObject", "Sketch002")
sketch3.AttachmentSupport = (doc.getObject("XY_Plane"), [""])
sketch3.MapMode = "FlatFace"
sketch3.AttachmentOffset = App.Placement(Vector(0, 0, 0.3 * 25.4), App.Rotation())
sketch3.addGeometry([
    Part.LineSegment(Vector(733, -58, 0), Vector(773, -3, 0)),  # 0
    Part.LineSegment(Vector(773, -3, 0), Vector(694, -14, 0)),  # 1
    Part.ArcOfCircle(Part.Circle(Vector(667, -78, 0), Vector(0, 0, 1), 70), math.radians(17), math.radians(67)),  # 2
    Part.LineSegment(Vector(773, -144, 0), Vector(736, -88, 0)),  # 3
    Part.ArcOfCircle(Part.Circle(Vector(667, -78, 0), Vector(0, 0, 1), 70), math.radians(-57), math.radians(-8)),  # 4
    Part.LineSegment(Vector(704, -137, 0), Vector(773, -144, 0)),  # 5
], False)
sketch3.addConstraint([
    Sketcher.Constraint("Coincident", 0, 2, 1, 1),
    Sketcher.Constraint("Coincident", 1, 2, 2, 2),
    Sketcher.Constraint("Coincident", 2, 1, 0, 1),
    Sketcher.Constraint("Coincident", 3, 2, 4, 2),
    Sketcher.Constraint("Coincident", 4, 1, 5, 1),
    Sketcher.Constraint("Coincident", 5, 2, 3, 1),
    Sketcher.Constraint("Coincident", 4, 3, 2, 3),
    Sketcher.Constraint("Equal", 2, 4),
    Sketcher.Constraint("Radius", 2, Q("2.7375 in")),
    Sketcher.Constraint("DistanceX", -1, 1, 2, 3, Q("26.25 in")),
    Sketcher.Constraint("DistanceX", -1, 1, 0, 2, 773.084551),
    Sketcher.Constraint("DistanceY", 0, 2, -1, 1, 2.53797),
    Sketcher.Constraint("DistanceY", 2, 1, -1, 1, 58.070731),
    Sketcher.Constraint("DistanceY", 4, 1, -1, 1, 136.52954),
    Sketcher.Constraint("DistanceX", 1, 2, 0, 2, 78.631529),
    Sketcher.Constraint("DistanceX", 2, 1, 3, 2, 2.16102),
    Sketcher.Constraint("DistanceY", 3, 2, 1, 2, 73.802821),
    Sketcher.Constraint("DistanceX", 3, 2, 5, 2, 37.12557),
    Sketcher.Constraint("DistanceY", 5, 2, 3, 2, 55.976018),
])
pocket2 = body.newObject("PartDesign::Pocket", "Pocket001")
pocket2.Profile = sketch3
pocket2.Type = "ThroughAll"
doc.recompute()

fillet2 = body.newObject("PartDesign::Fillet", "Fillet001")
fillet2.Base = (pocket2, edges_at(pocket2, [
    (735.556, -87.929, 3.81),
    (772.681, -143.905, 3.81),
    (704.133, -136.53, 3.81),
    (773.085, -2.538, 3.81),
    (733.395, -58.071, 3.81),
    (694.453, -14.126, 3.81),
]))
fillet2.Radius = Q("0.25 in")

# Sketch on XY plane
sketch4 = body.newObject("Sketcher::SketchObject", "Sketch003")
sketch4.AttachmentSupport = (doc.getObject("XY_Plane"), [""])
sketch4.MapMode = "FlatFace"
sketch4.AttachmentOffset = App.Placement(Vector(0, 0, 0.3 * 25.4), App.Rotation())
sketch4.addGeometry([
    Part.LineSegment(Vector(632.61168, -14.426913, 0), Vector(566.137854, -3.515659, 0)),  # 0
    Part.LineSegment(Vector(566.137854, -3.515659, 0), Vector(544.20671, -14.426913, 0)),  # 1
    Part.LineSegment(Vector(544.20671, -14.426913, 0), Vector(505.795587, -61.30184, 0)),  # 2
    Part.LineSegment(Vector(505.795587, -61.30184, 0), Vector(596.21445, -63.096701, 0)),  # 3
    Part.ArcOfCircle(Part.Circle(Vector(666.75, -77.901477, 0), Vector(0, 0, 1), 72.0725), math.radians(118.272554), math.radians(168.146203)),  # 4
    Part.LineSegment(Vector(546.092984, -153.421083, 0), Vector(630.634468, -137.318957, 0)),  # 5
    Part.ArcOfCircle(Part.Circle(Vector(666.75, -77.901477, 0), Vector(0, 0, 1), 69.5325), math.radians(-171.118958), math.radians(-121.292352)),  # 6
    Part.LineSegment(Vector(598.051125, -88.636147, 0), Vector(546.092984, -153.421083, 0)),  # 7
    Part.LineSegment(Vector(600.547071, -73.344708, 0), Vector(502.723422, -71.402857, 0)),  # 8
    Part.ArcOfCircle(Part.Circle(Vector(494.978509, -127, 0), Vector(0, 0, 1), 56.134), math.radians(-9.081867), math.radians(82.069496)),  # 9
    Part.LineSegment(Vector(550.408803, -135.860503, 0), Vector(600.547071, -73.344708, 0)),  # 10
], False)
sketch4.addConstraint([
    Sketcher.Constraint("Coincident", 0, 2, 1, 1),
    Sketcher.Constraint("Coincident", 1, 2, 2, 1),
    Sketcher.Constraint("Coincident", 2, 2, 3, 1),
    Sketcher.Constraint("Coincident", 3, 2, 4, 2),
    Sketcher.Constraint("Coincident", 4, 1, 0, 1),
    Sketcher.Constraint("Coincident", 5, 2, 6, 2),
    Sketcher.Constraint("Coincident", 6, 1, 7, 1),
    Sketcher.Constraint("Coincident", 7, 2, 5, 1),
    Sketcher.Constraint("Coincident", 8, 2, 9, 2),
    Sketcher.Constraint("Coincident", 9, 1, 10, 1),
    Sketcher.Constraint("Coincident", 10, 2, 8, 1),
    Sketcher.Constraint("Coincident", 6, 3, 4, 3),
    Sketcher.Constraint("Parallel", 3, 8),
    Sketcher.Constraint("Parallel", 7, 10),
    Sketcher.Constraint("Horizontal", 1, 2, 4, 1),
    Sketcher.Constraint("Radius", 9, Q("2.21 in")),
    Sketcher.Constraint("DistanceY", 9, 3, -1, 1, Q("5 in")),
    Sketcher.Constraint("Radius", 4, Q("2.8375 in")),
    Sketcher.Constraint("Radius", 6, Q("2.7375 in")),
    Sketcher.Constraint("DistanceX", -1, 1, 4, 3, Q("26.25 in")),
    Sketcher.Constraint("DistanceY", 7, 2, -1, 1, Q("6.0402001 in")),
    Sketcher.Constraint("DistanceY", 3, 2, -1, 1, 63.096701),
    Sketcher.Constraint("DistanceX", 9, 3, 1, 2, 49.228201),
    Sketcher.Constraint("DistanceY", 8, 2, 0, 2, 67.887199),
    Sketcher.Constraint("Distance", 0, 67.363379),
    Sketcher.Constraint("Distance", 1, 24.495522),
    Sketcher.Constraint("Distance", 7, 83.046592),
    Sketcher.Constraint("Distance", 8, 97.842921),
    Sketcher.Constraint("DistanceX", -1, 1, 9, 3, 494.978509),
    Sketcher.Constraint("DistanceY", 0, 2, -1, 1, 3.515659),
    Sketcher.Constraint("DistanceY", 2, 2, -1, 1, 61.30184),
    Sketcher.Constraint("DistanceX", -1, 1, 3, 2, 596.21445),
    Sketcher.Constraint("DistanceY", 5, 2, 6, 3, 59.41748),
    Sketcher.Constraint("DistanceY", 5, 2, 6, 1, 48.68281),
    Sketcher.Constraint("DistanceY", 4, 3, 10, 2, 4.55677),
])
pocket3 = body.newObject("PartDesign::Pocket", "Pocket002")
pocket3.Profile = sketch4
pocket3.Type = "ThroughAll"
doc.recompute()

fillet3 = body.newObject("PartDesign::Fillet", "Fillet002")
fillet3.Base = (pocket3, edges_at(pocket3, [
    (566.138, -3.516, 3.81),
    (544.207, -14.427, 3.81),
    (505.796, -61.302, 3.81),
    (596.214, -63.097, 3.81),
    (632.612, -14.427, 3.81),
    (502.723, -71.403, 3.81),
    (600.547, -73.345, 3.81),
    (550.409, -135.861, 3.81),
    (630.634, -137.319, 3.81),
    (546.093, -153.421, 3.81),
    (598.051, -88.636, 3.81),
]))
fillet3.Radius = Q("0.25 in")

# Sketch on XY plane
sketch5 = body.newObject("Sketcher::SketchObject", "Sketch004")
sketch5.AttachmentSupport = (doc.getObject("XY_Plane"), [""])
sketch5.MapMode = "FlatFace"
sketch5.AttachmentOffset = App.Placement(Vector(0, 0, 0.3 * 25.4), App.Rotation())
sketch5.addGeometry([
    Part.LineSegment(Vector(691.593469, -142.844303, 0), Vector(776.492772, -151.978917, 0)),  # 0
    Part.ArcOfCircle(Part.Circle(Vector(777.24, -145.034, 0), Vector(0, 0, 1), 6.985), math.radians(-96.14103), math.radians(33.553955)),  # 1
    Part.LineSegment(Vector(783.061059, -141.173237, 0), Vector(735.827075, -69.956274, 0)),  # 2
    Part.BSplineCurve([Vector(662.005493, -139.660829, 0), Vector(729.199736, -143.098901, 0), Vector(735.827075, -69.956274, 0)], [3, 3], [0, 1], False, 2, [1, 1, 1], False),  # 3
    Part.LineSegment(Vector(662.005493, -139.660829, 0), Vector(691.593469, -142.844303, 0)),  # 4
], False)
sketch5.addConstraint([
    Sketcher.Constraint("Block", 3),
    Sketcher.Constraint("Coincident", 0, 2, 1, 1),
    Sketcher.Constraint("Coincident", 1, 2, 2, 1),
    Sketcher.Constraint("Coincident", 2, 2, 3, 2),
    Sketcher.Constraint("Coincident", 3, 1, 4, 1),
    Sketcher.Constraint("Coincident", 4, 2, 0, 1),
    Sketcher.Constraint("Radius", 1, Q("0.275 in")),
    Sketcher.Constraint("DistanceX", -1, 1, 1, 3, Q("30.6 in")),
    Sketcher.Constraint("DistanceY", 1, 3, -1, 1, Q("5.71 in")),
    Sketcher.Constraint("Distance", 0, 85.389302),
    Sketcher.Constraint("DistanceX", -1, 1, 0, 2, 776.492772),
    Sketcher.Constraint("DistanceX", -1, 1, 1, 2, 783.061059),
    Sketcher.Constraint("DistanceX", -1, 1, 4, 2, 691.593469),
])
pocket4 = body.newObject("PartDesign::Pocket", "Pocket003")
pocket4.Profile = sketch5
pocket4.Type = "ThroughAll"
doc.recompute()

fillet4 = body.newObject("PartDesign::Fillet", "Fillet003")
fillet4.Base = (pocket4, edges_at(pocket4, [(735.827, -69.956, 3.81)]))
fillet4.Radius = Q("0.5 in")

doc.recompute()
